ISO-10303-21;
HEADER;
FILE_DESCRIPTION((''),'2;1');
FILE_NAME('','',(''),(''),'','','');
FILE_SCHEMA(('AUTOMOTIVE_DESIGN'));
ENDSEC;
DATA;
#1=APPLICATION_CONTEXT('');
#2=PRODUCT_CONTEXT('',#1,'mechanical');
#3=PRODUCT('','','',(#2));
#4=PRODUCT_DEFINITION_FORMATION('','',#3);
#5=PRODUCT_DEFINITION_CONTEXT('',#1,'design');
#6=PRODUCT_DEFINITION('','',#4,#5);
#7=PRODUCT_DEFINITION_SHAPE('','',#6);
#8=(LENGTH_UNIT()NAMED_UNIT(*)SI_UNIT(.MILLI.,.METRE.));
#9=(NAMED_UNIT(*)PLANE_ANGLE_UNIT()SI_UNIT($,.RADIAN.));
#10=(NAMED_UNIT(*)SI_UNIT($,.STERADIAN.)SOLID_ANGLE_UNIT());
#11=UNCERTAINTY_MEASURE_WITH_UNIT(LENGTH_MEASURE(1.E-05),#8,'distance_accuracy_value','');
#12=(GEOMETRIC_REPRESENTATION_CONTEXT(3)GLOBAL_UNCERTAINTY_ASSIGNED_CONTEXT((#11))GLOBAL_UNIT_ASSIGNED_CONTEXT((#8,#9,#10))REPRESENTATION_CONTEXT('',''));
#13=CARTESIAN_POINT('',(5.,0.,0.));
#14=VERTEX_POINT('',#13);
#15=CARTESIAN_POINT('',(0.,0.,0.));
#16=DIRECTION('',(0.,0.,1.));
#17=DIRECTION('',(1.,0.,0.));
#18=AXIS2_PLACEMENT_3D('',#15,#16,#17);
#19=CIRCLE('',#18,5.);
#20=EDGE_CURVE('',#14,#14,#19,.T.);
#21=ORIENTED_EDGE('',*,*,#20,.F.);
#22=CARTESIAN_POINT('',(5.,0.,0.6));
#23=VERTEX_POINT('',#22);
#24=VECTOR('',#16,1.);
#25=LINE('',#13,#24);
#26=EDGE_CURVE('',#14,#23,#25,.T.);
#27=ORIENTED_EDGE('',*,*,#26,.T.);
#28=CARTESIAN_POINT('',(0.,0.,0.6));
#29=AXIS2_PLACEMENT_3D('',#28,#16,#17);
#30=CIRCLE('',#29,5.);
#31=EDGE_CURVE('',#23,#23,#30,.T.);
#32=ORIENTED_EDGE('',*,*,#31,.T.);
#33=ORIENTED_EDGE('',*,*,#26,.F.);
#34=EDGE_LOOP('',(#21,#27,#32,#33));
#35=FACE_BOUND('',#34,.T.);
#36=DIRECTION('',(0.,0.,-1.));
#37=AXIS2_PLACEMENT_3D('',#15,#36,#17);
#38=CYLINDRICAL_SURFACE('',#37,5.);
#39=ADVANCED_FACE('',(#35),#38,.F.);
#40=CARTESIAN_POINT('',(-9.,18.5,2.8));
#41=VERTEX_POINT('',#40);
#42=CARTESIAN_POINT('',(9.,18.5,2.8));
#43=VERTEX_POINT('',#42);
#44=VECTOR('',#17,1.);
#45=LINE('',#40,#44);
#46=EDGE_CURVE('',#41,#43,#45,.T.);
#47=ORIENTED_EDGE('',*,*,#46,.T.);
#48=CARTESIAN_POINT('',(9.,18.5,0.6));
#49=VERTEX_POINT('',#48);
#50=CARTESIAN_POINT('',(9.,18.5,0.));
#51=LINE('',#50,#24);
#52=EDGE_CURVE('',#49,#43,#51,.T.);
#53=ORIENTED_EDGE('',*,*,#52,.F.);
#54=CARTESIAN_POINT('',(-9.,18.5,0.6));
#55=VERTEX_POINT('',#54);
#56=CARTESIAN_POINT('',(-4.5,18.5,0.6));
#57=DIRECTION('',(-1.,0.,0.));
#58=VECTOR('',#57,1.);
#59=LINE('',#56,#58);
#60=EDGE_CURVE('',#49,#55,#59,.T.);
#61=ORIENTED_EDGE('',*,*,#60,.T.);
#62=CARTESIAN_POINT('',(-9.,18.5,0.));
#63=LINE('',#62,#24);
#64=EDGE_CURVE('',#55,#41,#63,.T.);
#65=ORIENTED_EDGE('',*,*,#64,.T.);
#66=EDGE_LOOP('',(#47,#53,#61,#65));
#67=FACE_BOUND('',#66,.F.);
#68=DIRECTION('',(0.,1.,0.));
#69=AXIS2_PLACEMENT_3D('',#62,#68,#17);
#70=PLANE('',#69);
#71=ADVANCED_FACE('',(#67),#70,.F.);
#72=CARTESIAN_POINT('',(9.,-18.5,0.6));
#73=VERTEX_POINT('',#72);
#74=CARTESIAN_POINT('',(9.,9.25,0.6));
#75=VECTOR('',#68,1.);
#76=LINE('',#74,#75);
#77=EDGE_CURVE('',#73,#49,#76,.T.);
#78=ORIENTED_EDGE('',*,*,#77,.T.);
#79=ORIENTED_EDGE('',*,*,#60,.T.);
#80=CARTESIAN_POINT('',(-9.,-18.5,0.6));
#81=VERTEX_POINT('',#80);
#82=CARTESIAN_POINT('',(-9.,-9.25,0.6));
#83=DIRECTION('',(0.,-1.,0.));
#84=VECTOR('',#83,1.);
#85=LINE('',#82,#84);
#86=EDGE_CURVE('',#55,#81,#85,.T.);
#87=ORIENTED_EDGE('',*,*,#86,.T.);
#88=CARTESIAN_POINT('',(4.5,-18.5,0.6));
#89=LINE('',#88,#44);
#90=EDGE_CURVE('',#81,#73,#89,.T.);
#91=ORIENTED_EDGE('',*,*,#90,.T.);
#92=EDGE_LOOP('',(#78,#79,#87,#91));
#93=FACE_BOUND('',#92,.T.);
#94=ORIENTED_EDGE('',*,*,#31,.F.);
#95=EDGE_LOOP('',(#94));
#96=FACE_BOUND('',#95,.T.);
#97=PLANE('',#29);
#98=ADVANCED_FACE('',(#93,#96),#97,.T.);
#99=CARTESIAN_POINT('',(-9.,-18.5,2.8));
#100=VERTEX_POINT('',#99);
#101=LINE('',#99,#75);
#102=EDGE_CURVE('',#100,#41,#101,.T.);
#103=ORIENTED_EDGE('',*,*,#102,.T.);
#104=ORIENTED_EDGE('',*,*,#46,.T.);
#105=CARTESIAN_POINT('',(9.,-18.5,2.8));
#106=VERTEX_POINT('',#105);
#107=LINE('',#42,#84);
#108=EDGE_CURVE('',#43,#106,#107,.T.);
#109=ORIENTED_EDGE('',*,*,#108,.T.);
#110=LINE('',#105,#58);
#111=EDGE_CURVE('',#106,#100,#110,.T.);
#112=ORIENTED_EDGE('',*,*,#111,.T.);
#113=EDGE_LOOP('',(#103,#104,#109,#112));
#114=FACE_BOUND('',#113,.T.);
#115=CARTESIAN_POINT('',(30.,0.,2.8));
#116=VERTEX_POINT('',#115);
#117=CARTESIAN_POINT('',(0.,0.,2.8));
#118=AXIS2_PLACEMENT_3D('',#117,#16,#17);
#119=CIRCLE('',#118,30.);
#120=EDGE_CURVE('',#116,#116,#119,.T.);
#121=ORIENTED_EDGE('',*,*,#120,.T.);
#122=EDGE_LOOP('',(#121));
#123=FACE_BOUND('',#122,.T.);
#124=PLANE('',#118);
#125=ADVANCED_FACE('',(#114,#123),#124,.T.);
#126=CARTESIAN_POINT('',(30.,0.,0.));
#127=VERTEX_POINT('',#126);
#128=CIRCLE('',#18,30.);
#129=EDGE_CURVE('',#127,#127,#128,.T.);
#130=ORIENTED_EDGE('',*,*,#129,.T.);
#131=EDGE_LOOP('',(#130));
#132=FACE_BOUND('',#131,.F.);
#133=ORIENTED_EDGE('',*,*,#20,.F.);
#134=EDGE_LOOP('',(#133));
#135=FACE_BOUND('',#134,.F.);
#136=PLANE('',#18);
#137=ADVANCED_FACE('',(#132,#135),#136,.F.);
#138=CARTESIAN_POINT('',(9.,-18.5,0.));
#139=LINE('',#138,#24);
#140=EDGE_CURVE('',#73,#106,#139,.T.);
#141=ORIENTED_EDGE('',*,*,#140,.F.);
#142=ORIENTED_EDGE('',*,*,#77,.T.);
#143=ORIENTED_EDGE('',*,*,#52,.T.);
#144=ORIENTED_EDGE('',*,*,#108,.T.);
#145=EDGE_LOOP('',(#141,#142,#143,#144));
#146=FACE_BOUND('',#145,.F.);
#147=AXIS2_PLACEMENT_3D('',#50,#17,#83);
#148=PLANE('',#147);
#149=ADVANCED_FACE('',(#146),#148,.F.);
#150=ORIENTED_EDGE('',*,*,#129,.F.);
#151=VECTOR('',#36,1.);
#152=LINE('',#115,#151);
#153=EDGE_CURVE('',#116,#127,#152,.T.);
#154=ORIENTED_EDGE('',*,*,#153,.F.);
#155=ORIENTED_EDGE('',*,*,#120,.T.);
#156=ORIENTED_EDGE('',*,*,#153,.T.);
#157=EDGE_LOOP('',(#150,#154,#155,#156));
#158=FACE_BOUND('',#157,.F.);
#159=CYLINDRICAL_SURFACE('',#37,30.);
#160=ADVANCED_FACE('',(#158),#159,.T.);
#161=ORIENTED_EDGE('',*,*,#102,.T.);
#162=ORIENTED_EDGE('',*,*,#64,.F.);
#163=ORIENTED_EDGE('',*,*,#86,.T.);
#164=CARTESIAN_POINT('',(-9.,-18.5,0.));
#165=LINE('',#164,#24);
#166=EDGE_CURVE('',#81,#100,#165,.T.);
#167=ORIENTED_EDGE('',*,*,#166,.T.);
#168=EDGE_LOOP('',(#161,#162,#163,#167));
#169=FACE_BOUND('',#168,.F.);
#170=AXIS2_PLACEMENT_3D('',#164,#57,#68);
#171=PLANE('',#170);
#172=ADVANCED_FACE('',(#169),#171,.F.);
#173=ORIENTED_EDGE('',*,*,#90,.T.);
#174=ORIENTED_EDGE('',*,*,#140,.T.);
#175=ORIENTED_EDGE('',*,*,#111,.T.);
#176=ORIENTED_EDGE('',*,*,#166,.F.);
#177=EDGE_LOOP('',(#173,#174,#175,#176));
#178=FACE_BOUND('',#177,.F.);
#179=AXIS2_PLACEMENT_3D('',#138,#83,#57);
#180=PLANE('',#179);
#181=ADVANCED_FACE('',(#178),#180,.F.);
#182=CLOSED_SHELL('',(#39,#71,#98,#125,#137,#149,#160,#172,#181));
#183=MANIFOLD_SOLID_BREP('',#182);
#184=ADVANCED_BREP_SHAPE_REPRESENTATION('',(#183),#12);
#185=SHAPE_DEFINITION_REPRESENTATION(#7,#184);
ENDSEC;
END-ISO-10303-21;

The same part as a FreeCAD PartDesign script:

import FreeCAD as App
import Part
import Sketcher

doc = App.newDocument("Part")
body = doc.addObject("PartDesign::Body", "Body")

sketch1 = body.newObject("Sketcher::SketchObject", "Sketch")
sketch1.AttachmentSupport = (doc.getObject("XY_Plane"), [""])
sketch1.MapMode = "FlatFace"
sketch1.addGeometry([
    Part.Circle(App.Vector(0, 0, 0), App.Vector(0, 0, 1), 30),
    Part.Circle(App.Vector(0, 0, 0), App.Vector(0, 0, 1), 5),
], False)
sketch1.addConstraint([
    Sketcher.Constraint("Coincident", 0, 3, -1, 1),
    Sketcher.Constraint("Coincident", 1, 3, -1, 1),
    Sketcher.Constraint("Diameter", 0, 60.0),
    Sketcher.Constraint("Diameter", 1, 10.0),
])
pad1 = body.newObject("PartDesign::Pad", "Pad")
pad1.Profile = sketch1
pad1.Length = 0.6

sketch2 = body.newObject("Sketcher::SketchObject", "Sketch001")
sketch2.AttachmentSupport = (doc.getObject("XY_Plane"), [""])
sketch2.MapMode = "FlatFace"
sketch2.addGeometry([
    Part.Circle(App.Vector(0, 0, 0), App.Vector(0, 0, 1), 30),
    Part.LineSegment(App.Vector(-9, -18, 0), App.Vector(-9, 18, 0)),
    Part.LineSegment(App.Vector(-9, 18, 0), App.Vector(9, 18, 0)),
    Part.LineSegment(App.Vector(9, 18, 0), App.Vector(9, -18, 0)),
    Part.LineSegment(App.Vector(9, -18, 0), App.Vector(-9, -18, 0)),
], False)
sketch2.addConstraint([
    Sketcher.Constraint("Coincident", 1, 2, 2, 1),
    Sketcher.Constraint("Coincident", 2, 2, 3, 1),
    Sketcher.Constraint("Coincident", 3, 2, 4, 1),
    Sketcher.Constraint("Coincident", 4, 2, 1, 1),
    Sketcher.Constraint("Vertical", 1),
    Sketcher.Constraint("Horizontal", 2),
    Sketcher.Constraint("Vertical", 3),
    Sketcher.Constraint("Horizontal", 4),
    Sketcher.Constraint("Coincident", 0, 3, -1, 1),
    Sketcher.Constraint("Symmetric", 1, 2, 3, 2, -1, 1),
    Sketcher.Constraint("Diameter", 0, 60.0),
    Sketcher.Constraint("DistanceX", 2, 1, 2, 2, 18.0),
    Sketcher.Constraint("DistanceY", 1, 1, 1, 2, 37.0),
])
pad2 = body.newObject("PartDesign::Pad", "Pad001")
pad2.Profile = sketch2
pad2.Length = 2.8

doc.recompute()
